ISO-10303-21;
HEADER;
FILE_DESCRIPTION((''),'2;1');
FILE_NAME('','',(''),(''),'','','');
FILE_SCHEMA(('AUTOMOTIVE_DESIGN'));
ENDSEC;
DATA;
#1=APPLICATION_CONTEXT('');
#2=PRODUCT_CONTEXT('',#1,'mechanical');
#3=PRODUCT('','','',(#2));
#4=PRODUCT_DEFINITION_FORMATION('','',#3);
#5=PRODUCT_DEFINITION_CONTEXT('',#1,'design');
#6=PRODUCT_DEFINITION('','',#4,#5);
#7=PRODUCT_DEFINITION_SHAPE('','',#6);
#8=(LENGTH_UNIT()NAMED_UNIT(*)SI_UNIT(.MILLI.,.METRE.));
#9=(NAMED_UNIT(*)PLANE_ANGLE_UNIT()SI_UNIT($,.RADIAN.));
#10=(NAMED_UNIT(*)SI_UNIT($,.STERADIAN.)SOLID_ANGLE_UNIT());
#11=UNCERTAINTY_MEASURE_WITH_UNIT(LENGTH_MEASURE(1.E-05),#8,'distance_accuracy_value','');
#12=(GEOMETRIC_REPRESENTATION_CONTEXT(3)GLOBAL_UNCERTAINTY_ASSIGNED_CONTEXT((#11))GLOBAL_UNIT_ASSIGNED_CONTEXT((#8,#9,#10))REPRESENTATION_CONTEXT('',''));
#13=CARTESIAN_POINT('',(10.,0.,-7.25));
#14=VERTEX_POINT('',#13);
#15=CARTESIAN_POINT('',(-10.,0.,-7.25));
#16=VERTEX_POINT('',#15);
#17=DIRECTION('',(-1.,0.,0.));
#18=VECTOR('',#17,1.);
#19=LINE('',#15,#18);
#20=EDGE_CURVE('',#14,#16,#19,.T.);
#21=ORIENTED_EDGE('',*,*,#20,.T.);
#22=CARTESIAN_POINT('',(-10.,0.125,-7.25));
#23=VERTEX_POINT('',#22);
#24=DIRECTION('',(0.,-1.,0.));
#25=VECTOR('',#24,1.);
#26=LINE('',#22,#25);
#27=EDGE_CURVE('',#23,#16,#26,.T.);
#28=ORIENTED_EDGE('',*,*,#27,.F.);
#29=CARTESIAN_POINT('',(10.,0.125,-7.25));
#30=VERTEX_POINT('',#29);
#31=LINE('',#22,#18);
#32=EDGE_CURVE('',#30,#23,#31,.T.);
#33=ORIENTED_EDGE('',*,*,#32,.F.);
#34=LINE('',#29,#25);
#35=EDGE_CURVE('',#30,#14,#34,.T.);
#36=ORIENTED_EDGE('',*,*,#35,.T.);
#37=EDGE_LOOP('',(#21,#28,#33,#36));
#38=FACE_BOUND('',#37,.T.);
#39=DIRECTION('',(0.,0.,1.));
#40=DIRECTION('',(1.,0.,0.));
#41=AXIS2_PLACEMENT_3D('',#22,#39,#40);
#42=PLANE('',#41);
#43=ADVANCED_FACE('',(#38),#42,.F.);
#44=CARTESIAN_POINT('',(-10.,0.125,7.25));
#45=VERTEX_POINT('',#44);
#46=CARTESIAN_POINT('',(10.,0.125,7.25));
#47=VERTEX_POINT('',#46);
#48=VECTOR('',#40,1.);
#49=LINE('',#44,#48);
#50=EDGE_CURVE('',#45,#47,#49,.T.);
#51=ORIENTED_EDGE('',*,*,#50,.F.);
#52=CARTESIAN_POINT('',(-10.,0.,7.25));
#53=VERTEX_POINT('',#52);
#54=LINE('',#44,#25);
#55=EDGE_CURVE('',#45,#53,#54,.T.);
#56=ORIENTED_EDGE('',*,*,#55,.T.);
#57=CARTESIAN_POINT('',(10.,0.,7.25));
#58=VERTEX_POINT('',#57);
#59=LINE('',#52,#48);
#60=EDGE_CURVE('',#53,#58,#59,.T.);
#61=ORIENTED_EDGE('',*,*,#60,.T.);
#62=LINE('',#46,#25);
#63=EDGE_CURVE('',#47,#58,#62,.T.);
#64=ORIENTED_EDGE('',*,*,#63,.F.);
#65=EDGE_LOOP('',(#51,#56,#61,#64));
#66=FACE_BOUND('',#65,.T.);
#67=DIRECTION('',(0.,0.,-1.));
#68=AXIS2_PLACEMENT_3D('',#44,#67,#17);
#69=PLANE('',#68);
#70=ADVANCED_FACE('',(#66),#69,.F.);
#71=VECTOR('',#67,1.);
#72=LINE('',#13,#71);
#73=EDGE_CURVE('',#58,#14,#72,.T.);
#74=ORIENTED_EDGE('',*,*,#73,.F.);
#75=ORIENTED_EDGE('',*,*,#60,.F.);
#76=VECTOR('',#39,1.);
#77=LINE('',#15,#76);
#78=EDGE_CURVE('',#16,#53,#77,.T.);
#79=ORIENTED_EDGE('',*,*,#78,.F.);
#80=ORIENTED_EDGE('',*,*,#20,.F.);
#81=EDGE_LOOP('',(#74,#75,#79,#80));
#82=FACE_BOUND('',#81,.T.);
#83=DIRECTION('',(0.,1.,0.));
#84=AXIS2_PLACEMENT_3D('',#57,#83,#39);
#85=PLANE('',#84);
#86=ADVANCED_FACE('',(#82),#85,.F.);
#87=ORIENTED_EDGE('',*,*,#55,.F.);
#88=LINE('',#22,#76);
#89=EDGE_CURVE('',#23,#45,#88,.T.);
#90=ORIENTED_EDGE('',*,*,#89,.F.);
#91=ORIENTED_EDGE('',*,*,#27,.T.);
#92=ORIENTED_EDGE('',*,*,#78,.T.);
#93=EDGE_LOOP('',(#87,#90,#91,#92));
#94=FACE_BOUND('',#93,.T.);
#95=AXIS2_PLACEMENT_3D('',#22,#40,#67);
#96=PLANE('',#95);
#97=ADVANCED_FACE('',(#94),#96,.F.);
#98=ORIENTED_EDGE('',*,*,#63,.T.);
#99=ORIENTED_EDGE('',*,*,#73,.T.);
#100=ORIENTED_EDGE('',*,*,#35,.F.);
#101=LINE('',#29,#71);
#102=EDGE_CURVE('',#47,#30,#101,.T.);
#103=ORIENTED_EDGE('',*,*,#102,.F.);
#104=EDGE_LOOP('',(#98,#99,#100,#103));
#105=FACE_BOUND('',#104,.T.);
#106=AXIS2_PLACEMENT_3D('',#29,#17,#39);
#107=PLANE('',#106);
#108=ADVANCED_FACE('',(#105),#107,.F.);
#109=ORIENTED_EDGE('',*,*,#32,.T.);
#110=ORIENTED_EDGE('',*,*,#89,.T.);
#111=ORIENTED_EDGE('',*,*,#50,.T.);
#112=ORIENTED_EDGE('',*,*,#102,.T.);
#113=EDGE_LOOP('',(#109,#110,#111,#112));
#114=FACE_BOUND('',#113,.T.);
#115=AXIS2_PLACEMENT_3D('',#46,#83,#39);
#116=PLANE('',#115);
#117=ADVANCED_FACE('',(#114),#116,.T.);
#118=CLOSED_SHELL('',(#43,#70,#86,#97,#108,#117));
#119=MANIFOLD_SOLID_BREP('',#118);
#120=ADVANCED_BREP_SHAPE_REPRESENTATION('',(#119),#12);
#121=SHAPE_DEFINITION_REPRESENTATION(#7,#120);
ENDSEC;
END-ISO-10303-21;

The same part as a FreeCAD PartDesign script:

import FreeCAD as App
import Part
import Sketcher
from FreeCAD import Vector


def add_polygon(sketch, points):
    """Adds a closed chain of lines whose ends are joined by coincident constraints."""
    first, n = sketch.GeometryCount, len(points)
    for a, b in zip(points, points[1:] + points[:1]):
        sketch.addGeometry(Part.LineSegment(App.Vector(*a, 0), App.Vector(*b, 0)), False)
    for i in range(n):
        sketch.addConstraint(Sketcher.Constraint("Coincident", first + i, 2, first + (i + 1) % n, 1))

doc = App.newDocument("Part")
body = doc.addObject("PartDesign::Body", "Body")

sketch1 = body.newObject("Sketcher::SketchObject", "Sketch")
sketch1.AttachmentSupport = (doc.getObject("XZ_Plane"), [""])
sketch1.MapMode = "FlatFace"
add_polygon(sketch1, [(-10, -7), (-10, 7), (10, 7), (10, -7)])
sketch1.addConstraint([
    Sketcher.Constraint("Vertical", 0),
    Sketcher.Constraint("Horizontal", 1),
    Sketcher.Constraint("Vertical", 2),
    Sketcher.Constraint("Horizontal", 3),
    Sketcher.Constraint("Symmetric", 0, 2, 2, 2, -1, 1),
    Sketcher.Constraint("DistanceX", 1, 1, 1, 2, 20.0),
    Sketcher.Constraint("DistanceY", 0, 1, 0, 2, 14.5),
])
pad1 = body.newObject("PartDesign::Pad", "Pad")
pad1.Profile = sketch1
pad1.Length = 0.125
pad1.Reversed = True

doc.recompute()
